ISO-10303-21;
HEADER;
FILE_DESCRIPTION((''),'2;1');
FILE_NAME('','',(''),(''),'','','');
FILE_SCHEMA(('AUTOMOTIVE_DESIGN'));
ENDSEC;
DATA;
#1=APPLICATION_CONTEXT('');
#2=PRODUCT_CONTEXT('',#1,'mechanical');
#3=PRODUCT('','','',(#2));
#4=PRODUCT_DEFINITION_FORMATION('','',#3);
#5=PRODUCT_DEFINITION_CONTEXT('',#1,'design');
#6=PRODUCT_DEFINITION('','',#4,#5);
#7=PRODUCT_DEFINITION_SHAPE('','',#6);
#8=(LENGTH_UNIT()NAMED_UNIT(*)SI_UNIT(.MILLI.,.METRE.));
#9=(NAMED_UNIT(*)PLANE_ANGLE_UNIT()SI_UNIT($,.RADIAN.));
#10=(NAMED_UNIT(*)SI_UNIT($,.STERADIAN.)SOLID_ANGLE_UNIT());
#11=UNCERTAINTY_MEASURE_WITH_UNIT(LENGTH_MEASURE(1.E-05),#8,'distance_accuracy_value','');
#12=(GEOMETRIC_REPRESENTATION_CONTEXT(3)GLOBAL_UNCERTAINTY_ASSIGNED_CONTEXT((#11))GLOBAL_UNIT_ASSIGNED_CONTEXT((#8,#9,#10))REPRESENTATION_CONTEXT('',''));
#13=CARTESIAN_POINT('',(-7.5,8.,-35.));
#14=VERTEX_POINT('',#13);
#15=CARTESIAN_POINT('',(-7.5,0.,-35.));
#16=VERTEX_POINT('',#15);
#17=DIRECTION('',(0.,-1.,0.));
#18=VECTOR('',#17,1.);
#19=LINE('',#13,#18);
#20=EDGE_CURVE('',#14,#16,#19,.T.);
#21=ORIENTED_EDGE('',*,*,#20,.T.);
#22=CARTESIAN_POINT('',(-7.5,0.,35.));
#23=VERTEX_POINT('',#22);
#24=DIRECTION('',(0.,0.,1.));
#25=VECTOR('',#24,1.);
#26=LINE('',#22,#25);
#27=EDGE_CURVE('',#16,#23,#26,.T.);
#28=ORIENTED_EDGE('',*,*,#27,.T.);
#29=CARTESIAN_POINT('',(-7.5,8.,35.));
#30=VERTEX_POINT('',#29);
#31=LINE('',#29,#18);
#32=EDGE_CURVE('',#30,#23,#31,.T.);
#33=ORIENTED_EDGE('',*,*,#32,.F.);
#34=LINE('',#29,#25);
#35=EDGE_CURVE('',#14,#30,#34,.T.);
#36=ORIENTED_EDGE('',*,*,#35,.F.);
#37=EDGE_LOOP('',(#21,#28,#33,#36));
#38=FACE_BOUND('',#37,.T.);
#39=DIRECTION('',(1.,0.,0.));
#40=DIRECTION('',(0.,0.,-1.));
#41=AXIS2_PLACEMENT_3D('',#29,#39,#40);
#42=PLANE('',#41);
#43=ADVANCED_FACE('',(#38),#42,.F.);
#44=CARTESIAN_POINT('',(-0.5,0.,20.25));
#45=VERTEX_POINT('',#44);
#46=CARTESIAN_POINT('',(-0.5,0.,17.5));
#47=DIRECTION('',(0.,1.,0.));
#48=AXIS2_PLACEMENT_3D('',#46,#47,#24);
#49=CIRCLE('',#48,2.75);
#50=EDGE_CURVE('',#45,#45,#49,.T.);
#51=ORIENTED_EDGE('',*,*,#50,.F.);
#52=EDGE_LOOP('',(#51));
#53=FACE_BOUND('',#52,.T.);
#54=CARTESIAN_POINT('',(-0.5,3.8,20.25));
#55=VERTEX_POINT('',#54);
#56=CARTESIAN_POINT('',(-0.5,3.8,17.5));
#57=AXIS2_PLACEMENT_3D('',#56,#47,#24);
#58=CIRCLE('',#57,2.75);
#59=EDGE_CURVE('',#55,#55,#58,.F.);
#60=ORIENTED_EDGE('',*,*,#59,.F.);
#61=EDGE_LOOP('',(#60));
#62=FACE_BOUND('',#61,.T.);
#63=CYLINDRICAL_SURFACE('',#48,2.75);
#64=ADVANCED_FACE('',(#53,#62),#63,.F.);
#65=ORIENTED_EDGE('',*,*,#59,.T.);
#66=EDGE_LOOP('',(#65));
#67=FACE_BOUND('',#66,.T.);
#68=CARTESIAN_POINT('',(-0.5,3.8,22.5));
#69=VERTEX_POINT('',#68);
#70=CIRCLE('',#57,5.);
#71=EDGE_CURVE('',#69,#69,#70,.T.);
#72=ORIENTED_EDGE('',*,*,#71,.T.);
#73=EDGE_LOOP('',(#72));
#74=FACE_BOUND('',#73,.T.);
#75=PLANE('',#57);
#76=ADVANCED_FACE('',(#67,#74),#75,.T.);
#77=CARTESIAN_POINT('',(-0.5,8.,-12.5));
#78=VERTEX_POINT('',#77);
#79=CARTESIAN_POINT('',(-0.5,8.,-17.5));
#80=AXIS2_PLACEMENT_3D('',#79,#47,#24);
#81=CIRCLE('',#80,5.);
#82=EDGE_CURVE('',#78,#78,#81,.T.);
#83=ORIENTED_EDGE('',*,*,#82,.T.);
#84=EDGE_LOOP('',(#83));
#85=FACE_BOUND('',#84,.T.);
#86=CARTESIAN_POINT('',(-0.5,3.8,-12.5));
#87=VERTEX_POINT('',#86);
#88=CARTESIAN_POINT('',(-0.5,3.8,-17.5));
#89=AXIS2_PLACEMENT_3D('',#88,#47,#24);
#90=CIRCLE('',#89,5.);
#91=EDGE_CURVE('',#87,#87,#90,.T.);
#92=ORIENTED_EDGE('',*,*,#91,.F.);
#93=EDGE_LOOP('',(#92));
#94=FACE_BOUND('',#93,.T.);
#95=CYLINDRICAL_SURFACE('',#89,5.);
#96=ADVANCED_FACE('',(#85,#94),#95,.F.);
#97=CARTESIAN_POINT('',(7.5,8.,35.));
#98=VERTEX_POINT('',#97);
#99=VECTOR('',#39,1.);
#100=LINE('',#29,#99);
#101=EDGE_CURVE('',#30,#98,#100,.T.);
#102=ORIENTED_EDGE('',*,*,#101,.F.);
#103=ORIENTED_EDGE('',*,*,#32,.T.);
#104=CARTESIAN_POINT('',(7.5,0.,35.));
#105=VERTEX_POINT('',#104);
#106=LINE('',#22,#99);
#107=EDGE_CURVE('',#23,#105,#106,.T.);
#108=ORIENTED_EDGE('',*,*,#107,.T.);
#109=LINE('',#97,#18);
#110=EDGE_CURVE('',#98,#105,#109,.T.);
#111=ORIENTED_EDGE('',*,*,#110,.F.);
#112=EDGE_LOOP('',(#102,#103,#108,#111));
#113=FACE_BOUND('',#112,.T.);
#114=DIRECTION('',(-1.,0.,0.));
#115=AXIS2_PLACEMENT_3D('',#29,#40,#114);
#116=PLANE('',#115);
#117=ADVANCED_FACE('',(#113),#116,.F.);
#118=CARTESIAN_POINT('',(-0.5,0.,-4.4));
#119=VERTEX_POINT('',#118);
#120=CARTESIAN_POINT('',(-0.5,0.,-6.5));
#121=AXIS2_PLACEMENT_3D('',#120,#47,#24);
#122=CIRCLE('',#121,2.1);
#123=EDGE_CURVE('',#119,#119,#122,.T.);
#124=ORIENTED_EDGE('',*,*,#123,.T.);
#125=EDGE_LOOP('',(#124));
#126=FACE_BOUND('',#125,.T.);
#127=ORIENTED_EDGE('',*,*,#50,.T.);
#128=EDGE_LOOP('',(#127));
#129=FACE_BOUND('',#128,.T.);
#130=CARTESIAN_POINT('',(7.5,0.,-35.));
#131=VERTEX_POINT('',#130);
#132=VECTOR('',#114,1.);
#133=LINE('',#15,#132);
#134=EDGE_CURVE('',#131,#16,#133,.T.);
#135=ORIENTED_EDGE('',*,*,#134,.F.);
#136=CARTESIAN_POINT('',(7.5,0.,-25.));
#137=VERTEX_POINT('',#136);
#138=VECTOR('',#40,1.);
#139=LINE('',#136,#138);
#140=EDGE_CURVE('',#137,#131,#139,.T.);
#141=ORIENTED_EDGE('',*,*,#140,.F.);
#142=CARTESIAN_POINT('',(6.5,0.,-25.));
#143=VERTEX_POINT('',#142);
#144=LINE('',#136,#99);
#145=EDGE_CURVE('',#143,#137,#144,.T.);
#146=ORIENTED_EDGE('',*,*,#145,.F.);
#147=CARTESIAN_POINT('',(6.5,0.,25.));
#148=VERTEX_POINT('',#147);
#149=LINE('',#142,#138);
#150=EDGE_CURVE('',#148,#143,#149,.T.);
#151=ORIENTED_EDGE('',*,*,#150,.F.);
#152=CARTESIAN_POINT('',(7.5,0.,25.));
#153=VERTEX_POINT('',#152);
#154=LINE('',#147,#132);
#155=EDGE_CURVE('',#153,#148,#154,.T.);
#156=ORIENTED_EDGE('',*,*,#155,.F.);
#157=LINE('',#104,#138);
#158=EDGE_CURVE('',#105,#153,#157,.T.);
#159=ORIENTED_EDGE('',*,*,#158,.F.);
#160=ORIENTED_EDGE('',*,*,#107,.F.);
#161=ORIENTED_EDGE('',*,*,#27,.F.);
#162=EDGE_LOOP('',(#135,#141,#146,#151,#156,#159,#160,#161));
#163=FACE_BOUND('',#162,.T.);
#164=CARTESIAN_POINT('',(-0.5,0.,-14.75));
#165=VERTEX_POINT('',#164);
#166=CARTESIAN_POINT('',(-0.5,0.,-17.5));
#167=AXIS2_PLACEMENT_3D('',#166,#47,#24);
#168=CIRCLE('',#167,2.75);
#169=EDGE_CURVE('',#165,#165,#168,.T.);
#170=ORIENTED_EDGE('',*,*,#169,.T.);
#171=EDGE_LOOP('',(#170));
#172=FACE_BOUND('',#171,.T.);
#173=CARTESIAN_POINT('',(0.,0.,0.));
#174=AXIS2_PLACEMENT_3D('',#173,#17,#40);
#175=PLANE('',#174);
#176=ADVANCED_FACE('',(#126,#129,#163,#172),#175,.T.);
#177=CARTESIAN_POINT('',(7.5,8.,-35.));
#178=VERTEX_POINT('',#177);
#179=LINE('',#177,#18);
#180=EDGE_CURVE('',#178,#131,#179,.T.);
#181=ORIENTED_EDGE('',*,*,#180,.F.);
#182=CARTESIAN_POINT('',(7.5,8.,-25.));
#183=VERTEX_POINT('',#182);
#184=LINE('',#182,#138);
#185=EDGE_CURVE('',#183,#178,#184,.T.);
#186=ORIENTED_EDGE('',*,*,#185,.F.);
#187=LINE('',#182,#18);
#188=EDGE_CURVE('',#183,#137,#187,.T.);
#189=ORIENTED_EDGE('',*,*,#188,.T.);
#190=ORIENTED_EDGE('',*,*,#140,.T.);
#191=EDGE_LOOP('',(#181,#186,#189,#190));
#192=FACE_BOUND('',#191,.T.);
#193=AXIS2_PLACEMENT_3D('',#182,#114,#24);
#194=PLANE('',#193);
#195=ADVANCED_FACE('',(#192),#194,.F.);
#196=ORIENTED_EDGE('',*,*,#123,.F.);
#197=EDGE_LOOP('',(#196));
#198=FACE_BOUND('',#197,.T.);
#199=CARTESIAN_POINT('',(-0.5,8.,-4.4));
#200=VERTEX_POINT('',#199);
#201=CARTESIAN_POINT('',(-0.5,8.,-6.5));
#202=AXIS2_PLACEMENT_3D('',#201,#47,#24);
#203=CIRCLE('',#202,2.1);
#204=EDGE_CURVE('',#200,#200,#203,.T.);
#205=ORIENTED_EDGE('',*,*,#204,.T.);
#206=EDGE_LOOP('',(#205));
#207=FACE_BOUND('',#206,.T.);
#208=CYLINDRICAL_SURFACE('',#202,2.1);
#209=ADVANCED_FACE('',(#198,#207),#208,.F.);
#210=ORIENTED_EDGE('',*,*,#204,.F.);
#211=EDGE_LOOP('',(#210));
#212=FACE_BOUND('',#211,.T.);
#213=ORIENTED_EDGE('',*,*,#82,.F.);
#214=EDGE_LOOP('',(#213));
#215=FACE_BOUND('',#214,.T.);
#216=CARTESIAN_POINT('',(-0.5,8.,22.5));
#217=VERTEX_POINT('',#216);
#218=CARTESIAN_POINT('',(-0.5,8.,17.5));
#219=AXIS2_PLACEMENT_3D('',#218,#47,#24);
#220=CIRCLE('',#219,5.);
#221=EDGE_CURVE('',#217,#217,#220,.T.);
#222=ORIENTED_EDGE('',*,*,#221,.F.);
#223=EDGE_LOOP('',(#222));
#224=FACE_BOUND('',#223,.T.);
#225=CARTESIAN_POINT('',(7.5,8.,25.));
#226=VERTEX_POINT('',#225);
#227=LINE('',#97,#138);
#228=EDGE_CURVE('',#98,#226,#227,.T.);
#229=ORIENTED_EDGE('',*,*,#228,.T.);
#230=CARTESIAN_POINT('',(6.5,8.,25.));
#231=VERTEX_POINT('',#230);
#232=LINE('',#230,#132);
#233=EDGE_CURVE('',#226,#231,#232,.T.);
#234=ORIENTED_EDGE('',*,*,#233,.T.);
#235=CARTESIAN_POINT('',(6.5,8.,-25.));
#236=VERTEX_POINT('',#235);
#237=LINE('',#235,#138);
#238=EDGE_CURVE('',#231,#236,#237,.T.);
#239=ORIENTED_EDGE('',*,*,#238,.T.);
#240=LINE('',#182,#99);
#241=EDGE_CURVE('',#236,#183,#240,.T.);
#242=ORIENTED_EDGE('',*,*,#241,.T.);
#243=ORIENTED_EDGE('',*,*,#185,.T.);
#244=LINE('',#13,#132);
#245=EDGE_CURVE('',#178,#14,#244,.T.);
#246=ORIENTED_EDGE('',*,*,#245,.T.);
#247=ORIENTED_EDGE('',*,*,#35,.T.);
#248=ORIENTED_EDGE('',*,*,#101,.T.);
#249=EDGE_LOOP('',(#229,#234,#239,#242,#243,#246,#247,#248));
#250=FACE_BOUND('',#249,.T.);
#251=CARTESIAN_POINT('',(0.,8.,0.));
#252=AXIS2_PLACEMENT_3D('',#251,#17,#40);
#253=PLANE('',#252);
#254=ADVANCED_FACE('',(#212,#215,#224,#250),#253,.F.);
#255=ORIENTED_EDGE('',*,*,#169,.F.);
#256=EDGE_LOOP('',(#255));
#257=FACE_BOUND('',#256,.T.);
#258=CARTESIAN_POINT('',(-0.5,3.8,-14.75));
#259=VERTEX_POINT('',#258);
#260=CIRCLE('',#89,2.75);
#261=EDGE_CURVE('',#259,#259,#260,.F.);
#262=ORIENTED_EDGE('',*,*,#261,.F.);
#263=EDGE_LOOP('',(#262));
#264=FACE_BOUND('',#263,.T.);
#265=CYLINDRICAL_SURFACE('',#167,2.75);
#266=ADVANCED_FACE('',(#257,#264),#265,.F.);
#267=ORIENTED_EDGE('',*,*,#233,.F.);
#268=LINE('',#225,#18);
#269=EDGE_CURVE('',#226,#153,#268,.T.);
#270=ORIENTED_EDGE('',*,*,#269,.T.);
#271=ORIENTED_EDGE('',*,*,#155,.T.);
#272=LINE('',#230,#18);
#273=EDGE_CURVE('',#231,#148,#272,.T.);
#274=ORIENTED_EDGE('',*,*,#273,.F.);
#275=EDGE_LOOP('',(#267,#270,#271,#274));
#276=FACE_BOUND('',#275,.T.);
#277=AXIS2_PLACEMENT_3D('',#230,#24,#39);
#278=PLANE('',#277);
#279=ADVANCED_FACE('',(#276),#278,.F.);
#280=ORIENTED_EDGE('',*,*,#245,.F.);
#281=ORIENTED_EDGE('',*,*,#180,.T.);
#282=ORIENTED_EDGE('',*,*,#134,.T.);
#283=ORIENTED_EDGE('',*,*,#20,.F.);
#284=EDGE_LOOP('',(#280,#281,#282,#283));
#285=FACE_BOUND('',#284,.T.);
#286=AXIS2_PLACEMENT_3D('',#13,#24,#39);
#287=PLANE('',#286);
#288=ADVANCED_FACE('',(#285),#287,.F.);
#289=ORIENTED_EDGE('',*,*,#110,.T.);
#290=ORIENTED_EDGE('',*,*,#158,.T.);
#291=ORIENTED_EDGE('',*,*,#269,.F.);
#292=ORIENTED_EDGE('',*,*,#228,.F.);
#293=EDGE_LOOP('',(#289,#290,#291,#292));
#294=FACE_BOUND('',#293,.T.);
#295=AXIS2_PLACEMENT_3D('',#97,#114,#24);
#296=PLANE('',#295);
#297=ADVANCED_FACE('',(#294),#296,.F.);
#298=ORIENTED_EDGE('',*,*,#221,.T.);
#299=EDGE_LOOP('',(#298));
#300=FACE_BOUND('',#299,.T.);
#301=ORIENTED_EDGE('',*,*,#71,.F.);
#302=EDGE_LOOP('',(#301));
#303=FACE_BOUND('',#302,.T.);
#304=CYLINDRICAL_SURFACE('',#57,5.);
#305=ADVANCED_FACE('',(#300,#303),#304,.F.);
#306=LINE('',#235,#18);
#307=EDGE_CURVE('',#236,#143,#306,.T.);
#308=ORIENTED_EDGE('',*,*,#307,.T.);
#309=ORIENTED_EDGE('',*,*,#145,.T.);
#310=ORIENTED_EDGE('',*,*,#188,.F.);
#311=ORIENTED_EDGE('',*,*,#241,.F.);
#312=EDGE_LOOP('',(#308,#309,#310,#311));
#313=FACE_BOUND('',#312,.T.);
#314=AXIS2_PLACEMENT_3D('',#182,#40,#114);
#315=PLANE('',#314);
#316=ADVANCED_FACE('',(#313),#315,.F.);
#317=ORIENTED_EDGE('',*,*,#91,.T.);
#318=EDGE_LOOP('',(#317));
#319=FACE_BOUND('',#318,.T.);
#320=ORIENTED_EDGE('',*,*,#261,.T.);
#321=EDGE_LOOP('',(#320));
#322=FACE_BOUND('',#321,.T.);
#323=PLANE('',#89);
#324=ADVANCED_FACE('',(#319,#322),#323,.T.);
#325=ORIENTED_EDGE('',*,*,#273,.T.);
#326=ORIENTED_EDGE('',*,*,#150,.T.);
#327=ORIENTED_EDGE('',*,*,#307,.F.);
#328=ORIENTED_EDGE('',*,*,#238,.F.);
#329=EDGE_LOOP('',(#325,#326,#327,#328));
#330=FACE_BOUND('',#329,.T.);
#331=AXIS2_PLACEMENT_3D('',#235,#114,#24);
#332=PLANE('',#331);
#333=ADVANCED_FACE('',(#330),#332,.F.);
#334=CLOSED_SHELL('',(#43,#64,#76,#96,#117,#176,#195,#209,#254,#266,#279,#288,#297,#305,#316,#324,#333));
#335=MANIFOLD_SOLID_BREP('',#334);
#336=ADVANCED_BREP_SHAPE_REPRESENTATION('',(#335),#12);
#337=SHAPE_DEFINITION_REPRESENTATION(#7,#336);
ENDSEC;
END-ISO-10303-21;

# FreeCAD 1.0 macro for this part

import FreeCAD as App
import Part
import Sketcher
from FreeCAD import Vector


def add_polygon(sketch, points):
    """Adds a closed chain of lines whose ends are joined by coincident constraints."""
    first, n = sketch.GeometryCount, len(points)
    for a, b in zip(points, points[1:] + points[:1]):
        sketch.addGeometry(Part.LineSegment(App.Vector(*a, 0), App.Vector(*b, 0)), False)
    for i in range(n):
        sketch.addConstraint(Sketcher.Constraint("Coincident", first + i, 2, first + (i + 1) % n, 1))

doc = App.newDocument("Part")
params = doc.addObject("Spreadsheet::Sheet", "Params")
for row, (alias, value) in enumerate([
    ("sketch1_width", "1 mm"),
    ("sketch1_width2", "15 mm"),
    ("sketch1_height", "10 mm"),
    ("sketch1_height2", "70 mm"),
    ("pad1_length", "8 mm"),
    ("sketch2_diameter", "5.5 mm"),
    ("sketch3_diameter", "10 mm"),
    ("pocket2_length", "4.2 mm"),
    ("sketch4_diameter", "4.2 mm"),
    ("hole_diameter", "4.2 mm"),
], start=1):
    params.set(f"A{row}", alias)
    params.set(f"B{row}", "=" + value)
    params.setAlias(f"B{row}", alias)

body = doc.addObject("PartDesign::Body", "Body")

sketch1 = doc.addObject("Sketcher::SketchObject", "Sketch")
body.addObject(sketch1)
sketch1.AttachmentSupport = (doc.XZ_Plane, [""])
sketch1.MapMode = "FlatFace"
add_polygon(sketch1, [(6.5, -25), (7.5, -25), (7.5, -35), (-7.5, -35), (-7.5, 35), (7.5, 35), (7.5, 25), (6.5, 25)])
sketch1.addConstraint([
    Sketcher.Constraint("Horizontal", 0),
    Sketcher.Constraint("Vertical", 1),
    Sketcher.Constraint("Horizontal", 2),
    Sketcher.Constraint("Vertical", 3),
    Sketcher.Constraint("Horizontal", 4),
    Sketcher.Constraint("Vertical", 5),
    Sketcher.Constraint("Horizontal", 6),
    Sketcher.Constraint("Vertical", 7),
    Sketcher.Constraint("Symmetric", 1, 2, 3, 2, -1, 1),
    Sketcher.Constraint("Symmetric", 0, 2, 5, 2, -1),
    Sketcher.Constraint("DistanceX", 0, 1, 0, 2, 1.0),
    Sketcher.Constraint("DistanceX", 2, 2, 2, 1, 15.0),
    Sketcher.Constraint("DistanceY", 1, 2, 1, 1, 10.0),
    Sketcher.Constraint("DistanceY", 3, 1, 3, 2, 70.0),
])
sketch1.setExpression("Constraints[18]", "Params.sketch1_width")
sketch1.setExpression("Constraints[19]", "Params.sketch1_width2")
sketch1.setExpression("Constraints[20]", "Params.sketch1_height")
sketch1.setExpression("Constraints[21]", "Params.sketch1_height2")
pad1 = doc.addObject("PartDesign::Pad", "Pad")
body.addObject(pad1)
pad1.Profile = sketch1
pad1.setExpression("Length", "Params.pad1_length")
pad1.Reversed = True

sketch2 = doc.addObject("Sketcher::SketchObject", "Sketch001")
body.addObject(sketch2)
sketch2.AttachmentSupport = (doc.XZ_Plane, [""])
sketch2.MapMode = "FlatFace"
sketch2.AttachmentOffset = App.Placement(Vector(0, 0, -8), App.Rotation())
sketch2.addGeometry([
    Part.Circle(Vector(-0.5, -17.5, 0), Vector(0, 0, 1), 2.75),
    Part.Circle(Vector(-0.5, 17.5, 0), Vector(0, 0, 1), 2.75),
], False)
sketch2.addConstraint([
    Sketcher.Constraint("Equal", 0, 1),
    Sketcher.Constraint("Symmetric", 0, 3, 1, 3, -1),
    Sketcher.Constraint("Diameter", 0, 5.5),
    Sketcher.Constraint("DistanceY", 0, 3, 1, 3, 35.0),
    Sketcher.Constraint("DistanceX", 0, 3, -1, 1, 0.5),
])
sketch2.setExpression("Constraints[2]", "Params.sketch2_diameter")
pocket1 = doc.addObject("PartDesign::Pocket", "Pocket")
body.addObject(pocket1)
pocket1.Profile = sketch2
pocket1.Type = "ThroughAll"
pocket1.Reversed = True

sketch3 = doc.addObject("Sketcher::SketchObject", "Sketch002")
body.addObject(sketch3)
sketch3.AttachmentSupport = (doc.XZ_Plane, [""])
sketch3.MapMode = "FlatFace"
sketch3.AttachmentOffset = App.Placement(Vector(0, 0, -8), App.Rotation())
sketch3.addGeometry([
    Part.Circle(Vector(-0.5, -17.5, 0), Vector(0, 0, 1), 5),
    Part.Circle(Vector(-0.5, 17.5, 0), Vector(0, 0, 1), 5),
], False)
sketch3.addConstraint([
    Sketcher.Constraint("Equal", 0, 1),
    Sketcher.Constraint("Symmetric", 0, 3, 1, 3, -1),
    Sketcher.Constraint("Diameter", 0, 10.0),
    Sketcher.Constraint("DistanceY", 0, 3, 1, 3, 35.0),
    Sketcher.Constraint("DistanceX", 0, 3, -1, 1, 0.5),
])
sketch3.setExpression("Constraints[2]", "Params.sketch3_diameter")
pocket2 = doc.addObject("PartDesign::Pocket", "Pocket001")
body.addObject(pocket2)
pocket2.Profile = sketch3
pocket2.setExpression("Length", "Params.pocket2_length")
pocket2.Reversed = True

sketch4 = doc.addObject("Sketcher::SketchObject", "Sketch003")
body.addObject(sketch4)
sketch4.AttachmentSupport = (doc.XZ_Plane, [""])
sketch4.MapMode = "FlatFace"
sketch4.AttachmentOffset = App.Placement(Vector(0, 0, -8), App.Rotation())
sketch4.addGeometry(Part.Circle(Vector(-0.5, -6.5, 0), Vector(0, 0, 1), 2.1), False)
sketch4.addConstraint([
    Sketcher.Constraint("Diameter", 0, 4.2),
    Sketcher.Constraint("DistanceX", 0, 3, -1, 1, 0.5),
    Sketcher.Constraint("DistanceY", 0, 3, -1, 1, 6.5),
])
sketch4.setExpression("Constraints[0]", "Params.sketch4_diameter")
doc.recompute()
hole = doc.addObject("PartDesign::Hole", "Hole")
body.addObject(hole)
hole.Profile = sketch4
hole.ThreadType = "None"
hole.setExpression("Diameter", "Params.hole_diameter")
hole.DepthType = "ThroughAll"
hole.Reversed = True

doc.recompute()
